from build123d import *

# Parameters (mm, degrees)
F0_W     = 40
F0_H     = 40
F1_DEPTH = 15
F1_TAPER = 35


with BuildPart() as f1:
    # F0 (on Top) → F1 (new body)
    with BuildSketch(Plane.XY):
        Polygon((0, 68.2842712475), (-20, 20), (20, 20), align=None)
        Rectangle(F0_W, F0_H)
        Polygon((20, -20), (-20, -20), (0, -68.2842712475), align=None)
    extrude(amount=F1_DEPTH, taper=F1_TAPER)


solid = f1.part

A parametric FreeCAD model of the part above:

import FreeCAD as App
import Part
import Sketcher
from FreeCAD import Vector
Q = App.Units.Quantity

doc = App.newDocument("Part")
params = doc.addObject("Spreadsheet::Sheet", "Params")
for row, (alias, value) in enumerate([
    ("sketch1_height", "40 mm"),
    ("pad1_length", "15 mm"),
    ("pad1_taper", "-35 deg"),
], start=1):
    params.set(f"A{row}", alias)
    params.set(f"B{row}", "=" + value)
    params.setAlias(f"B{row}", alias)

body = doc.addObject("PartDesign::Body", "Body")

# Sketch on XY plane
sketch1 = body.newObject("Sketcher::SketchObject", "Sketch")
sketch1.AttachmentSupport = (doc.getObject("XY_Plane"), [""])
sketch1.MapMode = "FlatFace"
sketch1.addGeometry([
    Part.LineSegment(Vector(0, 68, 0), Vector(-20, 20, 0)),  # 0
    Part.LineSegment(Vector(-20, 20, 0), Vector(-20, -20, 0)),  # 1
    Part.LineSegment(Vector(-20, -20, 0), Vector(0, -68, 0)),  # 2
    Part.LineSegment(Vector(0, -68, 0), Vector(20, -20, 0)),  # 3
    Part.LineSegment(Vector(20, -20, 0), Vector(20, 20, 0)),  # 4
    Part.LineSegment(Vector(20, 20, 0), Vector(0, 68, 0)),  # 5
], False)
sketch1.addConstraint([
    Sketcher.Constraint("Coincident", 0, 2, 1, 1),
    Sketcher.Constraint("Coincident", 1, 2, 2, 1),
    Sketcher.Constraint("Coincident", 2, 2, 3, 1),
    Sketcher.Constraint("Coincident", 3, 2, 4, 1),
    Sketcher.Constraint("Coincident", 4, 2, 5, 1),
    Sketcher.Constraint("Coincident", 5, 2, 0, 1),
    Sketcher.Constraint("Vertical", 1),
    Sketcher.Constraint("Vertical", 4),
    Sketcher.Constraint("Symmetric", 0, 2, 3, 2, -1, 1),
    Sketcher.Constraint("Symmetric", 2, 2, 5, 2, -1, 1),
    Sketcher.Constraint("PointOnObject", 2, 2, -2),
    Sketcher.Constraint("Parallel", 2, 5),
    Sketcher.Constraint("Horizontal", 1, 2, 3, 2),
    Sketcher.Constraint("DistanceY", 1, 2, 1, 1, 40.0),
    Sketcher.Constraint("DistanceX", 0, 2, -1, 1, 20.0),
    Sketcher.Constraint("Angle", 0, Q("-112.5 deg")),
])
sketch1.setExpression("Constraints[13]", "Params.sketch1_height")
pad1 = body.newObject("PartDesign::Pad", "Pad")
pad1.Profile = sketch1
pad1.setExpression("Length", "Params.pad1_length")
pad1.setExpression("TaperAngle", "Params.pad1_taper")

doc.recompute()
